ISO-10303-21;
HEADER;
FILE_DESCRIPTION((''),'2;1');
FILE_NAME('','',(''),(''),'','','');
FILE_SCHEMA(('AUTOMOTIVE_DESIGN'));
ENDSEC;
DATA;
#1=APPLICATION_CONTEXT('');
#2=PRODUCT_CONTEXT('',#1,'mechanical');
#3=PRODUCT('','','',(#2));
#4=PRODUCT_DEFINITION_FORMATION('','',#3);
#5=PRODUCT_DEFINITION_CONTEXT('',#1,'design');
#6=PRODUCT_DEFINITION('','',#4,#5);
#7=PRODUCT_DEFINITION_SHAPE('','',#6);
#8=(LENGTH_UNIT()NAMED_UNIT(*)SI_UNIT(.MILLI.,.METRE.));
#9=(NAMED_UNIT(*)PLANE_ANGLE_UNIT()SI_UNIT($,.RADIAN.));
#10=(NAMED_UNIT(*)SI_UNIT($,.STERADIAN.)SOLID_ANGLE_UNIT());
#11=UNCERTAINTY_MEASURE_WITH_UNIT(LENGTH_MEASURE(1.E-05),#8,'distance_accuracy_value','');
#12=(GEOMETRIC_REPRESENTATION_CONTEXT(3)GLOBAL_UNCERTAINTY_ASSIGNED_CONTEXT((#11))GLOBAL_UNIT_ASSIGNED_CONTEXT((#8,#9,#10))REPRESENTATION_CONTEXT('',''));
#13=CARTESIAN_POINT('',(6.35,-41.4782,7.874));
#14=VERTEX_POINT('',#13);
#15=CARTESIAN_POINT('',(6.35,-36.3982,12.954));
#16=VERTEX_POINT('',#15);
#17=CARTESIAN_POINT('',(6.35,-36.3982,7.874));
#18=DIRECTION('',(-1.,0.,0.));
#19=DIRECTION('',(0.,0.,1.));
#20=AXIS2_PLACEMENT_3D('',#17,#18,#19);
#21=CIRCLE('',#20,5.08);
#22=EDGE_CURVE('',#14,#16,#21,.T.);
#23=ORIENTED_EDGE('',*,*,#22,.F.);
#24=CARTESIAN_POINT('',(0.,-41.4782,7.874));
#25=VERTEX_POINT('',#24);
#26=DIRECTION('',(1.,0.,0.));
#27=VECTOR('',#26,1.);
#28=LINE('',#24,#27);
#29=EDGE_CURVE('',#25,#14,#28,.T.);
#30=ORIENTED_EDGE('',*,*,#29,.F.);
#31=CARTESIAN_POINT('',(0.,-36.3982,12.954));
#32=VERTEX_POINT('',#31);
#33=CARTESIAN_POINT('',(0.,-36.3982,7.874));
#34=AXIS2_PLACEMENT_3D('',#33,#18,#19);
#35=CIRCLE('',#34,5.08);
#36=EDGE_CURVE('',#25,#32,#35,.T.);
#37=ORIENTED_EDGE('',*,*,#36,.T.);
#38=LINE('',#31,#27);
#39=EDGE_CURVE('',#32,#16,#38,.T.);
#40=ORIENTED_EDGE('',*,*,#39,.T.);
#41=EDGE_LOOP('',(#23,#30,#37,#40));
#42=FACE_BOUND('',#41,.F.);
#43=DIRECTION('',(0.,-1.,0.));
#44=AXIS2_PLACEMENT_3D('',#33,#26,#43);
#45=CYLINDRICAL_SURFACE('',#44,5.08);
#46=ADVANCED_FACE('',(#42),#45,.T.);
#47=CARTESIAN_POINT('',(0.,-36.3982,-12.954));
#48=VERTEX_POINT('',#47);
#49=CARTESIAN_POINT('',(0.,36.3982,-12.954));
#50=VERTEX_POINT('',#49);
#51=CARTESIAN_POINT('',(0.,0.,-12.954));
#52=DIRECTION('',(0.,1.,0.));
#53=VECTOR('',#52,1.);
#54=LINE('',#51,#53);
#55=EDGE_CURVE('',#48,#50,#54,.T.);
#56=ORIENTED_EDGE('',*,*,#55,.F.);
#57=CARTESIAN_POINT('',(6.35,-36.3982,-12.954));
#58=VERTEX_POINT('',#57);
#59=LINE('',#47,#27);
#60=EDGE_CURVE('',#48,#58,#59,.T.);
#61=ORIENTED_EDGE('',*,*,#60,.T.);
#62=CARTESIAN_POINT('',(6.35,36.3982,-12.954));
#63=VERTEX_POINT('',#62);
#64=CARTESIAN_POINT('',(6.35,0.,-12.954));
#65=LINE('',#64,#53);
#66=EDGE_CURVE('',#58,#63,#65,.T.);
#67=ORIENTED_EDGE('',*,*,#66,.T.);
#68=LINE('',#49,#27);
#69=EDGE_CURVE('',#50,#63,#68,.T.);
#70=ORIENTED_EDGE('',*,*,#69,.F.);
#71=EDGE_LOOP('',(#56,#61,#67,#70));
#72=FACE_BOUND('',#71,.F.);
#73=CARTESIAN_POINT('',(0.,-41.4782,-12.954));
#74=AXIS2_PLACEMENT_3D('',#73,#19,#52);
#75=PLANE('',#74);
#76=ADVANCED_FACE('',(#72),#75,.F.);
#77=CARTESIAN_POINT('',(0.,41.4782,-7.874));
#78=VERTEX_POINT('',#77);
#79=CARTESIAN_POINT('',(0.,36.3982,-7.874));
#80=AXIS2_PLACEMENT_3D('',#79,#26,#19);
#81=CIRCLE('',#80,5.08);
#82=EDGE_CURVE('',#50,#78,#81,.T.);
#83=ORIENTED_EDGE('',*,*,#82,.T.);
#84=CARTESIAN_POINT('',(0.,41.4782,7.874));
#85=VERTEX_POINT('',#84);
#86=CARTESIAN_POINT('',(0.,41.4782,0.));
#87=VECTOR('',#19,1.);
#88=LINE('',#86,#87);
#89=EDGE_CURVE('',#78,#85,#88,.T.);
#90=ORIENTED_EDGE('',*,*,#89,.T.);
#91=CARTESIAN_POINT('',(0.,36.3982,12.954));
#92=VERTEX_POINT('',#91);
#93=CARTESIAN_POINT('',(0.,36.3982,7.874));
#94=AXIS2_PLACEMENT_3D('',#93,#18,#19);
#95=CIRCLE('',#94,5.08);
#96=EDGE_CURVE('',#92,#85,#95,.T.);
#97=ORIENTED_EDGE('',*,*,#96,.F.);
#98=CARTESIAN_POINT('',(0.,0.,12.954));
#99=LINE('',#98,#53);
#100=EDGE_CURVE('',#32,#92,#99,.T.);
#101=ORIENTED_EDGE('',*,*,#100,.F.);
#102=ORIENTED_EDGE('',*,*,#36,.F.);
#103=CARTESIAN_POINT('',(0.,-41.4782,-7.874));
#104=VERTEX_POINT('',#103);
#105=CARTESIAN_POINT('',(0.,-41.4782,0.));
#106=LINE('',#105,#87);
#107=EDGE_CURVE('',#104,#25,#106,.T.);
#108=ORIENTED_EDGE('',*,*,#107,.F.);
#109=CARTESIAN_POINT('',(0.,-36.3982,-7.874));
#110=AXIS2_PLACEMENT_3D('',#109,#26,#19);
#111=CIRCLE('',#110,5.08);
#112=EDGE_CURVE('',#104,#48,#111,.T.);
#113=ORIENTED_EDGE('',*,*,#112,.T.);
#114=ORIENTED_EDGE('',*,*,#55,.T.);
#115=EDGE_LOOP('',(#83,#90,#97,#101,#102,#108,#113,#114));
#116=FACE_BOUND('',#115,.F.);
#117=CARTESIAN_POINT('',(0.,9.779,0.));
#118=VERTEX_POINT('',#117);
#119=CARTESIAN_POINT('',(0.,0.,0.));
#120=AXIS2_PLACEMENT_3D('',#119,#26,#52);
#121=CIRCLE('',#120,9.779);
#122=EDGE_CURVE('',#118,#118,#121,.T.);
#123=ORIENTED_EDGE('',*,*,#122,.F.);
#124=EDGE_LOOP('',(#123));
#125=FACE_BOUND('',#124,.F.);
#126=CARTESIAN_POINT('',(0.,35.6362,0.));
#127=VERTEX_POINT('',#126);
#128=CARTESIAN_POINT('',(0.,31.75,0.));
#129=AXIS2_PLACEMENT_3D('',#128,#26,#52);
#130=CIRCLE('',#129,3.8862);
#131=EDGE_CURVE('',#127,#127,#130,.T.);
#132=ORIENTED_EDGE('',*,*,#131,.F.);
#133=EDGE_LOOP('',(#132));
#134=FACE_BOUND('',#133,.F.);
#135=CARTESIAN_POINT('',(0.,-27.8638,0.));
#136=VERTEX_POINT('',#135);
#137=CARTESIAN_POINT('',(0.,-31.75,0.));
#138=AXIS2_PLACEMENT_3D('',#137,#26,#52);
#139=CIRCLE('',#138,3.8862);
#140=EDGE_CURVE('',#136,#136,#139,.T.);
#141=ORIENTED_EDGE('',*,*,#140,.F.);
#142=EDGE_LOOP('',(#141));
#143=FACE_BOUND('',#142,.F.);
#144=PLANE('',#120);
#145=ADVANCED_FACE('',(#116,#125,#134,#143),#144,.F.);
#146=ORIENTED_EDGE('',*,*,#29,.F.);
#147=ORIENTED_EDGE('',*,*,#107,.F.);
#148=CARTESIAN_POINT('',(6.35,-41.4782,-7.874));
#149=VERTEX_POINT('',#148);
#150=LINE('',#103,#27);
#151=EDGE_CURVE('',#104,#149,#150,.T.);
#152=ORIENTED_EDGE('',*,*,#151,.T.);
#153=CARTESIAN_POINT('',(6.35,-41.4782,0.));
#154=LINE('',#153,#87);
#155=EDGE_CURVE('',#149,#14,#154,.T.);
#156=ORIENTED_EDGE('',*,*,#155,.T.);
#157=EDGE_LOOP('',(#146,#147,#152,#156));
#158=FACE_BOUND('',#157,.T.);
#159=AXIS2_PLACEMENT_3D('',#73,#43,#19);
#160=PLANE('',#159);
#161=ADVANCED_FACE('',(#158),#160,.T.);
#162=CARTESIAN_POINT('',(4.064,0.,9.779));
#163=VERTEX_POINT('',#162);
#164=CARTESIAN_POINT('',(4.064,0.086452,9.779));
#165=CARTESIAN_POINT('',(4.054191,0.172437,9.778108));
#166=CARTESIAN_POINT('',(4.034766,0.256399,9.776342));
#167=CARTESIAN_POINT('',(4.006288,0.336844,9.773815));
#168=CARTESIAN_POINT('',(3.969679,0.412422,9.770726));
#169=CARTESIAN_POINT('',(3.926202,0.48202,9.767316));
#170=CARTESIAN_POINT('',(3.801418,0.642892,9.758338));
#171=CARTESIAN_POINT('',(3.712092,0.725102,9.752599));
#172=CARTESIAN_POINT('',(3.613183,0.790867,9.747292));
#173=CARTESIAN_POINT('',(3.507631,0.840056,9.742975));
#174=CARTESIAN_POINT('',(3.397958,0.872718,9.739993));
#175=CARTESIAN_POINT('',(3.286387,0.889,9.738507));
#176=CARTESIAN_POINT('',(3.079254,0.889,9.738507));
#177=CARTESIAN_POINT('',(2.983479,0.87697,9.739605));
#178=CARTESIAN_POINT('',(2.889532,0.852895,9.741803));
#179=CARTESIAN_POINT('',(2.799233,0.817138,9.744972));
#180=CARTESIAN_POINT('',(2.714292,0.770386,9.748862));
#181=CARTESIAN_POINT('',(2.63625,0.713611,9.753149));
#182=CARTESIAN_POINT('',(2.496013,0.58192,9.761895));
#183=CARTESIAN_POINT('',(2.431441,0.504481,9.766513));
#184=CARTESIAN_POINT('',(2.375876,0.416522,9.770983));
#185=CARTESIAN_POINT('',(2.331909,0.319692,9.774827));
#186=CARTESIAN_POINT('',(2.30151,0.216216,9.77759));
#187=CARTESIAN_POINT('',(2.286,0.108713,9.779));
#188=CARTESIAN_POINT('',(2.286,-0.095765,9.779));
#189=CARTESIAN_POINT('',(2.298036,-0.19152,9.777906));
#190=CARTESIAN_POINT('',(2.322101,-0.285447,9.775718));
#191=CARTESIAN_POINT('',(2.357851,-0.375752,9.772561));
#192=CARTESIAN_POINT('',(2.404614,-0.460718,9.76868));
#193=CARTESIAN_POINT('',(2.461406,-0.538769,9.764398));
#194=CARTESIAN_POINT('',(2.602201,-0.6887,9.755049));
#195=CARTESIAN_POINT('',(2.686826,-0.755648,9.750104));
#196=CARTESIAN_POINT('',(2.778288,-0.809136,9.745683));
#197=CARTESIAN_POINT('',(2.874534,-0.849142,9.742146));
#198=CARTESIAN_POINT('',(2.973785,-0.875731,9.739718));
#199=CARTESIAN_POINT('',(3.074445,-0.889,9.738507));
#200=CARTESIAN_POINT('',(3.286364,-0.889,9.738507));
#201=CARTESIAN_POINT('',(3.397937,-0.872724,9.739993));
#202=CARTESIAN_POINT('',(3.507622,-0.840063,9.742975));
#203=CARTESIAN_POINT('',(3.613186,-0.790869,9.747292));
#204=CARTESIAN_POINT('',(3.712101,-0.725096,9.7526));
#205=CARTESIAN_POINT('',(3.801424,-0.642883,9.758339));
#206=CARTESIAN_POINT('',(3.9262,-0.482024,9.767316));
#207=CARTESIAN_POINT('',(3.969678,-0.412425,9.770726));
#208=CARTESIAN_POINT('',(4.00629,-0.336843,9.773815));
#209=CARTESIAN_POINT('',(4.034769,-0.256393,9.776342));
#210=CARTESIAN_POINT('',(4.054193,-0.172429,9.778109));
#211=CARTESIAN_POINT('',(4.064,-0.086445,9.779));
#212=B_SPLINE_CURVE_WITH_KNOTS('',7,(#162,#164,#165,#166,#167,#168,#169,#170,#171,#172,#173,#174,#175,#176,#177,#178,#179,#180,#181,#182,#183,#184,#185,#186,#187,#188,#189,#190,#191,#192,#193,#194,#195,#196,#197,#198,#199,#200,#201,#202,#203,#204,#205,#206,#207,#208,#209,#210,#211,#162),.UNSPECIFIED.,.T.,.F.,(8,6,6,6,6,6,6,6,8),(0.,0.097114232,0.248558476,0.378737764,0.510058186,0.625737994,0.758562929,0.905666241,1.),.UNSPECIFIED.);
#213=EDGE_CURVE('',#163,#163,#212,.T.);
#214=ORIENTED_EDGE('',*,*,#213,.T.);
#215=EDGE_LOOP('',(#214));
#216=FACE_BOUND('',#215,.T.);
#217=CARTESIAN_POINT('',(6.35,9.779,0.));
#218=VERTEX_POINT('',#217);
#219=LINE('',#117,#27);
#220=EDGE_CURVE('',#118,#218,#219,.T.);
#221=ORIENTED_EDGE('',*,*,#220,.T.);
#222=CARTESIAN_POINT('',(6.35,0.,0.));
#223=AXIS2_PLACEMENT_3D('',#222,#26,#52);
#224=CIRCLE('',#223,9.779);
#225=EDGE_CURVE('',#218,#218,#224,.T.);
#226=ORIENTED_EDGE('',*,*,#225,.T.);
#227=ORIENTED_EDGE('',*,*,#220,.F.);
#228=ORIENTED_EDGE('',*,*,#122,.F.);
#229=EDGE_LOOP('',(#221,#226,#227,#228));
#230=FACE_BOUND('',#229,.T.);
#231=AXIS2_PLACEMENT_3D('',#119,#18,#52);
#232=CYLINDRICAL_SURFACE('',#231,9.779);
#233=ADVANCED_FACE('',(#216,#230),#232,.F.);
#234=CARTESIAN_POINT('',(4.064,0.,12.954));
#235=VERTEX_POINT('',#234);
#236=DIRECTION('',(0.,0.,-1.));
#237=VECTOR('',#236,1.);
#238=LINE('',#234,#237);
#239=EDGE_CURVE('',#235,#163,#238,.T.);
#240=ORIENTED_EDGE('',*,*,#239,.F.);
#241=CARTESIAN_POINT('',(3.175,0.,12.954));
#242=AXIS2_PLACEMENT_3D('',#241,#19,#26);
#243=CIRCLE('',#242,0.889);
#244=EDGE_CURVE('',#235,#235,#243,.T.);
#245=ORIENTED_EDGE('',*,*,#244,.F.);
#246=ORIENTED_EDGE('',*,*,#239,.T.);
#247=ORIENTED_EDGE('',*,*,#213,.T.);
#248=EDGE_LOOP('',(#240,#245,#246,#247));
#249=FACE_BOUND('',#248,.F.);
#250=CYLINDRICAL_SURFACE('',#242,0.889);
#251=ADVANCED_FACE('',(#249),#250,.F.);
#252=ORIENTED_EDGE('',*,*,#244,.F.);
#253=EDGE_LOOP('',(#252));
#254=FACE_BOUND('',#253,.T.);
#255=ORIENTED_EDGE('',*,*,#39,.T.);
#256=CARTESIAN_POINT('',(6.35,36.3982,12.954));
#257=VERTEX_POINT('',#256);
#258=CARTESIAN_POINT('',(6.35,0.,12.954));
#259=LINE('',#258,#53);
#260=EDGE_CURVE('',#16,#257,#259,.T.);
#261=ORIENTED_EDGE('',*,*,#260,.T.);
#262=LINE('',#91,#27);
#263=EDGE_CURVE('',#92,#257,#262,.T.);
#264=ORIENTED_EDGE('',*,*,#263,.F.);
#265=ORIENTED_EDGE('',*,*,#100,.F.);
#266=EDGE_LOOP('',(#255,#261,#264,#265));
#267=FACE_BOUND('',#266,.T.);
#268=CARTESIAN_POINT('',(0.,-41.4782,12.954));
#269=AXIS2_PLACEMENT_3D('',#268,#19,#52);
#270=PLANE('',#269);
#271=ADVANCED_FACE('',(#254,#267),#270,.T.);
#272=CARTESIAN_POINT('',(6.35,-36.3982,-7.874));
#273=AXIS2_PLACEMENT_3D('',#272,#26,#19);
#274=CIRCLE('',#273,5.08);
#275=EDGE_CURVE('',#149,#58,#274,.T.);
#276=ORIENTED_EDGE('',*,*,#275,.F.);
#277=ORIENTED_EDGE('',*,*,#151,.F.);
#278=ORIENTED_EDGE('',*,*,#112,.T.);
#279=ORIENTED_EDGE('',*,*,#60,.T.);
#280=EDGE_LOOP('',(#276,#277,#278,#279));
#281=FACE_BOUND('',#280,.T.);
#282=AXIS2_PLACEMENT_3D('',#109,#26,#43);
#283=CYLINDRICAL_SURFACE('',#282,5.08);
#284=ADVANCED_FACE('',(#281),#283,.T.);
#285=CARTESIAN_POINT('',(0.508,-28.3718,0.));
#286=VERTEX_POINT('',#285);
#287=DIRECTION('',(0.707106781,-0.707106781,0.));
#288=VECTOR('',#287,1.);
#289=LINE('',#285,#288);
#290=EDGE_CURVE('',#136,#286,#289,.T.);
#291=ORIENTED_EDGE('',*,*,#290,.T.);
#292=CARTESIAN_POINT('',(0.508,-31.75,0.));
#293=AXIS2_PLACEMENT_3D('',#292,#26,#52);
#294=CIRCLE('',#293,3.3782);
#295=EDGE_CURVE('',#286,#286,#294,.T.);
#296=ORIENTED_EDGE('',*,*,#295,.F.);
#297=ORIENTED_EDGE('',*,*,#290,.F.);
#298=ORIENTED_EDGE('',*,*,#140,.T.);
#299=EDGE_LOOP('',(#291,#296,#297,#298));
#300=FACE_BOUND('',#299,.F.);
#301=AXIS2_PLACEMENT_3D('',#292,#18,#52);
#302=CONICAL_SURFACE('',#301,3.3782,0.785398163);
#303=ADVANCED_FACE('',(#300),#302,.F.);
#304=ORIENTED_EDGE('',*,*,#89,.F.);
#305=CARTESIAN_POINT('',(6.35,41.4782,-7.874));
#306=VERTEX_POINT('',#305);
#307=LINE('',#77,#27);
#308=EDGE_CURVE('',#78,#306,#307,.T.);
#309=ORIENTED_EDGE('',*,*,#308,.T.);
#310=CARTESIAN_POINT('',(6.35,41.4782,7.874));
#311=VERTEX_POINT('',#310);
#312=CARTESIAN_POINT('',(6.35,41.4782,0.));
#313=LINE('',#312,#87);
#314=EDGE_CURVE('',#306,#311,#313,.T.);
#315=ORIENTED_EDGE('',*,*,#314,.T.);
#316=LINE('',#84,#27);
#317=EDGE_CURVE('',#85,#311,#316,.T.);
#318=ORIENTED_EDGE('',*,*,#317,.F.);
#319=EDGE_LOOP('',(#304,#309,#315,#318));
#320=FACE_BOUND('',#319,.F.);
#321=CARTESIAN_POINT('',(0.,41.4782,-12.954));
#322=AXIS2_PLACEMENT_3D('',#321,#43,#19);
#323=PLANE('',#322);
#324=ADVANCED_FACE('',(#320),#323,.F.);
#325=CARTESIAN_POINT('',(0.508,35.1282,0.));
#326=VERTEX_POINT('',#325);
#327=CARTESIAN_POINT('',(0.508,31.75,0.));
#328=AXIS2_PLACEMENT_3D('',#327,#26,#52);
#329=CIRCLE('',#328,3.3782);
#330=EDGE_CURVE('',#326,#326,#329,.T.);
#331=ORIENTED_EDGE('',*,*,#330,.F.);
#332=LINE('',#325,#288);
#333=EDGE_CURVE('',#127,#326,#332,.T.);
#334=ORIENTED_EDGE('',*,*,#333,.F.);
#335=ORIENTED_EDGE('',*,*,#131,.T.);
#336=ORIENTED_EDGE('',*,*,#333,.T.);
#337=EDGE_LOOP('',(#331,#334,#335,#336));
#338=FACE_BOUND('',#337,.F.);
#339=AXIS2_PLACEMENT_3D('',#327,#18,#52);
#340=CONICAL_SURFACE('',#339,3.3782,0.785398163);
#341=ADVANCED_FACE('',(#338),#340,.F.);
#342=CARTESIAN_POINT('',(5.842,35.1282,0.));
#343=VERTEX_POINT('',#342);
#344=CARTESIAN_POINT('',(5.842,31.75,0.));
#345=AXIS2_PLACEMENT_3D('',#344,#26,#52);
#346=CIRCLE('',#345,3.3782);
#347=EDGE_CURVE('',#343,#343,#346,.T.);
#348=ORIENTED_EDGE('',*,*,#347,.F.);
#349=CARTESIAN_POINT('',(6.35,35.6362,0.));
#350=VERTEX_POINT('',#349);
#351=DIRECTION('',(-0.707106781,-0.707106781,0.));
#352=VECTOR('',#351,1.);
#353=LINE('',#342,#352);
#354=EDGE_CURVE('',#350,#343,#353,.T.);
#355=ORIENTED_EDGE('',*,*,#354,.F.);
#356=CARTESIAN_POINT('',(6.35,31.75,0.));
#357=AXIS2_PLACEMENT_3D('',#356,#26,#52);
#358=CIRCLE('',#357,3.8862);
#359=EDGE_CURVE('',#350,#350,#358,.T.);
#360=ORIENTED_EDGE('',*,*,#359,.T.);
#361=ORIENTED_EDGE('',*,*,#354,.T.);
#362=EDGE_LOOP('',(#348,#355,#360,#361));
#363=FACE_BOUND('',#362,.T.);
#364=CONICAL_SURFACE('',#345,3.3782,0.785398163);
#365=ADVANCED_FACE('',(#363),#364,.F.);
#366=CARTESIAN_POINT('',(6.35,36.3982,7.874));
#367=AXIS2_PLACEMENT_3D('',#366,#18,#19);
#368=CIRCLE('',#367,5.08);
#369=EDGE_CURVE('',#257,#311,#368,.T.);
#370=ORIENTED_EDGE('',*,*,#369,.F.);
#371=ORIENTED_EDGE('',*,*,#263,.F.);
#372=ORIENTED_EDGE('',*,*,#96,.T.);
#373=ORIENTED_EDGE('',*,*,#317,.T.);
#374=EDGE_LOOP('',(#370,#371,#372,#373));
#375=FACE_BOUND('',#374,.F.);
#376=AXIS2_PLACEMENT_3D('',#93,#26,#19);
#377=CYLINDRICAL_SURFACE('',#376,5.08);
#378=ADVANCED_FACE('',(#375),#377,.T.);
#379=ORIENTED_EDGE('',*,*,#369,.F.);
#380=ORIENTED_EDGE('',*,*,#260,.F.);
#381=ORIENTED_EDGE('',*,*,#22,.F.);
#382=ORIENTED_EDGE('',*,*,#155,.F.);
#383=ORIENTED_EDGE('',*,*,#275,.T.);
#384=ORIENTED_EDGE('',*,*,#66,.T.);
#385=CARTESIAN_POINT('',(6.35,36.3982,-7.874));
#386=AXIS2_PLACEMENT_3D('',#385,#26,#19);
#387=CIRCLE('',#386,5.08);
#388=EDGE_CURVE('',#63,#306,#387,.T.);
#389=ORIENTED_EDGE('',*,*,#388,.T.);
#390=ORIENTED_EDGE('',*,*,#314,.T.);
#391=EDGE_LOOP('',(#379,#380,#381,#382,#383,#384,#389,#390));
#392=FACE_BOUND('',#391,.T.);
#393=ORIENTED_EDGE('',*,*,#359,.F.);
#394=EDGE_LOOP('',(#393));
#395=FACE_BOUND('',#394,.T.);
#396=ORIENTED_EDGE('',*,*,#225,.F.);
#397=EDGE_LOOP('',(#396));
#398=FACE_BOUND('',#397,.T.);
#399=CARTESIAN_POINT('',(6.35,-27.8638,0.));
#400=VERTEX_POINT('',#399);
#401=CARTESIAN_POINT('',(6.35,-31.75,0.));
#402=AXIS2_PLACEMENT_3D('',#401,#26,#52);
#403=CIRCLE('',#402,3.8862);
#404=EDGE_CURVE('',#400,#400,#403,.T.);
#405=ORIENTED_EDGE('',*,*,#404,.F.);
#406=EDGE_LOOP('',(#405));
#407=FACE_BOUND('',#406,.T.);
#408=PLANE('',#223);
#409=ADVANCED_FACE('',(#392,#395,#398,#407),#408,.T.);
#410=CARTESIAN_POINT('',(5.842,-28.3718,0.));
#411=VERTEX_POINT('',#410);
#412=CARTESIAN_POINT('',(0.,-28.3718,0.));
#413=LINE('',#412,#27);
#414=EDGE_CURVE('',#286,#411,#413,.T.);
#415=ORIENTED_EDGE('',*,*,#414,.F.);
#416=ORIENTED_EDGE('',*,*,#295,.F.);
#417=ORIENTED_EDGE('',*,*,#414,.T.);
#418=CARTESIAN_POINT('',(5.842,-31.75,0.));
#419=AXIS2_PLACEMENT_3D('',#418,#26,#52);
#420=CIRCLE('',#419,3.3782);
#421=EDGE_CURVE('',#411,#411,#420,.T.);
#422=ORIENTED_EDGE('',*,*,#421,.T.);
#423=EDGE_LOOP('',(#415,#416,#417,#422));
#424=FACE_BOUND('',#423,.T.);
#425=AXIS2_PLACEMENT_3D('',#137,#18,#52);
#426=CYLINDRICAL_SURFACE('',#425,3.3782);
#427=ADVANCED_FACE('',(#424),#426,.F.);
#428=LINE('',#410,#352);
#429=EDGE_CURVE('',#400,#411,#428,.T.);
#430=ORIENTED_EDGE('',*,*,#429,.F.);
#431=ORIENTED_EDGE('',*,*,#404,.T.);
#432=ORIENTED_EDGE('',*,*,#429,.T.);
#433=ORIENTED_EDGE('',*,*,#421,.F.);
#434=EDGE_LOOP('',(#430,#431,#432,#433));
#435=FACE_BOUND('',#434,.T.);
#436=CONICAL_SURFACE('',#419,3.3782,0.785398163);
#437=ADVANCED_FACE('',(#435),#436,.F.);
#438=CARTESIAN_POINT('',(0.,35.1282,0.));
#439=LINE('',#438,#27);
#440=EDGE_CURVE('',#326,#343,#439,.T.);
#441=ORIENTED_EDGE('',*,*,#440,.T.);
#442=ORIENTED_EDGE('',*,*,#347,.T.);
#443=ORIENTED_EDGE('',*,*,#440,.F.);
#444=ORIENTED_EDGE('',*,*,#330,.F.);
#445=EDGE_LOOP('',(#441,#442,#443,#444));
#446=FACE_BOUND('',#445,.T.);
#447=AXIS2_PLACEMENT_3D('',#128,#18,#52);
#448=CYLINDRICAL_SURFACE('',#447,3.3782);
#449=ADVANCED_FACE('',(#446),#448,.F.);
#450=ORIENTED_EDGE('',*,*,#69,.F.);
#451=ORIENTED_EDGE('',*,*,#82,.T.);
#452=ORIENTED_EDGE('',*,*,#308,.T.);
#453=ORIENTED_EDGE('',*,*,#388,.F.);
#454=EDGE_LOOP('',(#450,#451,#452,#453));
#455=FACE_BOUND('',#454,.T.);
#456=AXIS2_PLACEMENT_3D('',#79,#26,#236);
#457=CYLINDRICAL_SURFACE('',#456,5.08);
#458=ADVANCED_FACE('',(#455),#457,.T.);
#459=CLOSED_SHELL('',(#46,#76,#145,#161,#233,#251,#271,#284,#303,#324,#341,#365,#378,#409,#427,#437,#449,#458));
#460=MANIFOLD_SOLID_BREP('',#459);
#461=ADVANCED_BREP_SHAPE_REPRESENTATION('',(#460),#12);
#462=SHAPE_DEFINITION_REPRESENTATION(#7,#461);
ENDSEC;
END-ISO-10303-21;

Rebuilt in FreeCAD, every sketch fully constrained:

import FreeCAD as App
import Part
import Sketcher
Q = App.Units.Quantity


def edges_at(feature, points):
    """Names of the edges that pass closest to the given points."""
    edges = feature.Shape.Edges
    near = lambda p: min(range(len(edges)), key=lambda i: edges[i].distToShape(Part.Vertex(*p))[0])
    return sorted({f"Edge{near(p) + 1}" for p in points})


def add_polygon(sketch, points):
    """Adds a closed chain of lines whose ends are joined by coincident constraints."""
    first, n = sketch.GeometryCount, len(points)
    for a, b in zip(points, points[1:] + points[:1]):
        sketch.addGeometry(Part.LineSegment(App.Vector(*a, 0), App.Vector(*b, 0)), False)
    for i in range(n):
        sketch.addConstraint(Sketcher.Constraint("Coincident", first + i, 2, first + (i + 1) % n, 1))

doc = App.newDocument("Part")
body = doc.addObject("PartDesign::Body", "Body")

sketch1 = doc.addObject("Sketcher::SketchObject", "Sketch")
body.addObject(sketch1)
sketch1.AttachmentSupport = (doc.YZ_Plane, [""])
sketch1.MapMode = "FlatFace"
add_polygon(sketch1, [(-41.5, 13), (-41.5, -13), (41.5, -13), (41.5, 13)])
sketch1.addGeometry(Part.Circle(App.Vector(-31.8, 0, 0), App.Vector(0, 0, 1), 3.4), False)
sketch1.addGeometry(Part.Circle(App.Vector(0, 0, 0), App.Vector(0, 0, 1), 9.8), False)
sketch1.addGeometry(Part.Circle(App.Vector(31.8, 0, 0), App.Vector(0, 0, 1), 3.4), False)
sketch1.addConstraint([
    Sketcher.Constraint("Vertical", 0),
    Sketcher.Constraint("Horizontal", 1),
    Sketcher.Constraint("Vertical", 2),
    Sketcher.Constraint("Horizontal", 3),
    Sketcher.Constraint("Coincident", 5, 3, -1, 1),
    Sketcher.Constraint("Equal", 4, 6),
    Sketcher.Constraint("Symmetric", 4, 3, 6, 3, -1, 1),
    Sketcher.Constraint("Symmetric", 0, 2, 2, 2, -1, 1),
    Sketcher.Constraint("PointOnObject", 4, 3, -1),
    Sketcher.Constraint("Diameter", 5, Q("0.77 in")),
    Sketcher.Constraint("Diameter", 4, Q("0.266 in")),
    Sketcher.Constraint("DistanceY", 0, 2, 0, 1, Q("1.02 in")),
    Sketcher.Constraint("DistanceX", 4, 3, 6, 3, Q("2.5 in")),
    Sketcher.Constraint("DistanceX", 1, 1, 1, 2, Q("3.266 in")),
])
pad1 = doc.addObject("PartDesign::Pad", "Pad")
body.addObject(pad1)
pad1.Profile = sketch1
pad1.Length = Q("0.25 in")
doc.recompute()

fillet = doc.addObject("PartDesign::Fillet", "Fillet")
body.addObject(fillet)
fillet.Base = (pad1, edges_at(pad1, [
    (3.175, -41.478, 12.954),
    (3.175, 41.478, 12.954),
    (3.175, 41.478, -12.954),
    (3.175, -41.478, -12.954),
]))
fillet.Radius = Q("0.2 in")
doc.recompute()

chamfer = doc.addObject("PartDesign::Chamfer", "Chamfer")
body.addObject(chamfer)
chamfer.Base = (fillet, edges_at(fillet, [
    (0, 28.372, 0),
    (6.35, 28.372, 0),
    (0, -35.128, 0),
    (6.35, -35.128, 0),
]))
chamfer.Size = Q("0.02 in")

sketch2 = doc.addObject("Sketcher::SketchObject", "Sketch001")
body.addObject(sketch2)
sketch2.AttachmentSupport = (doc.XY_Plane, [""])
sketch2.MapMode = "FlatFace"
sketch2.AttachmentOffset = App.Placement(App.Vector(0, 0, 0.51 * 25.4), App.Rotation())
sketch2.addGeometry(Part.Circle(App.Vector(3.2, 0, 0), App.Vector(0, 0, 1), 0.9), False)
sketch2.addConstraint([
    Sketcher.Constraint("PointOnObject", 0, 3, -1),
    Sketcher.Constraint("Diameter", 0, Q("0.07 in")),
    Sketcher.Constraint("DistanceX", -1, 1, 0, 3, Q("0.125 in")),
])
pocket1 = doc.addObject("PartDesign::Pocket", "Pocket")
body.addObject(pocket1)
pocket1.Profile = sketch2
pocket1.Length = 3.216493

doc.recompute()
